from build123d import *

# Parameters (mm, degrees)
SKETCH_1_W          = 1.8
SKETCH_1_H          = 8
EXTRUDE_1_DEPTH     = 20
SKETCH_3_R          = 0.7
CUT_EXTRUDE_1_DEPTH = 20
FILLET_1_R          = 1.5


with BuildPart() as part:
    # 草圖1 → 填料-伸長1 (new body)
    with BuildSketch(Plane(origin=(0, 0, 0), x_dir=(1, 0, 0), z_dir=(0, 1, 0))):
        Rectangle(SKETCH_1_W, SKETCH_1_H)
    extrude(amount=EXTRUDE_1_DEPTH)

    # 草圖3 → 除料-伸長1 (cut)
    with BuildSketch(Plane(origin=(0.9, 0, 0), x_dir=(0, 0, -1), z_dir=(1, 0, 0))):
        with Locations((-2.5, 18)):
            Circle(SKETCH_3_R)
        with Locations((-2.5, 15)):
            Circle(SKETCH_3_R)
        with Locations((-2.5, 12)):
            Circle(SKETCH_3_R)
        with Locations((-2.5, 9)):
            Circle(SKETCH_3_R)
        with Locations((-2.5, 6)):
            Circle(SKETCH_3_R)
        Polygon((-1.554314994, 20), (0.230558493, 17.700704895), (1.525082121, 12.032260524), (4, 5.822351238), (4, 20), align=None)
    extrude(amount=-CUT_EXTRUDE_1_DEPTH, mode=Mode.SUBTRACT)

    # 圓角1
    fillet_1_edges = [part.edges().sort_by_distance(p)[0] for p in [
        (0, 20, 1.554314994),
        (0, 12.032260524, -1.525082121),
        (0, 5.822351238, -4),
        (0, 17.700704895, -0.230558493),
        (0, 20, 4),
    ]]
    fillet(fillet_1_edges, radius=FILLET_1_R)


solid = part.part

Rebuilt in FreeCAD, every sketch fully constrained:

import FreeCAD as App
import Part
import Sketcher


def edges_at(feature, points):
    """Names of the edges that pass closest to the given points."""
    edges = feature.Shape.Edges
    near = lambda p: min(range(len(edges)), key=lambda i: edges[i].distToShape(Part.Vertex(*p))[0])
    return sorted({f"Edge{near(p) + 1}" for p in points})


def add_polygon(sketch, points):
    """Adds a closed chain of lines whose ends are joined by coincident constraints."""
    first, n = sketch.GeometryCount, len(points)
    for a, b in zip(points, points[1:] + points[:1]):
        sketch.addGeometry(Part.LineSegment(App.Vector(*a, 0), App.Vector(*b, 0)), False)
    for i in range(n):
        sketch.addConstraint(Sketcher.Constraint("Coincident", first + i, 2, first + (i + 1) % n, 1))

doc = App.newDocument("Part")
params = doc.addObject("Spreadsheet::Sheet", "Params")
for row, (alias, value) in enumerate([
    ("sketch1_height", "8 mm"),
    ("sketch1_width", "1.8 mm"),
    ("pad1_length", "20 mm"),
    ("sketch2_diameter", "1.4 mm"),
    ("pocket1_length", "20 mm"),
    ("fillet_radius", "1.5 mm"),
], start=1):
    params.set(f"A{row}", alias)
    params.set(f"B{row}", "=" + value)
    params.setAlias(f"B{row}", alias)

body = doc.addObject("PartDesign::Body", "Body")

sketch1 = body.newObject("Sketcher::SketchObject", "Sketch")
sketch1.AttachmentSupport = (doc.getObject("XZ_Plane"), [""])
sketch1.MapMode = "FlatFace"
add_polygon(sketch1, [(-0.9, -4), (-0.9, 4), (0.9, 4), (0.9, -4)])
sketch1.addConstraint(Sketcher.Constraint("Vertical", 0))
sketch1.addConstraint(Sketcher.Constraint("Horizontal", 1))
sketch1.addConstraint(Sketcher.Constraint("Vertical", 2))
sketch1.addConstraint(Sketcher.Constraint("Horizontal", 3))
sketch1.addConstraint(Sketcher.Constraint("Symmetric", 0, 2, 2, 2, -1, 1))
sketch1.addConstraint(Sketcher.Constraint("DistanceY", 0, 1, 0, 2, 8.0))
sketch1.addConstraint(Sketcher.Constraint("DistanceX", 1, 1, 1, 2, 1.8))
sketch1.setExpression("Constraints[9]", "Params.sketch1_height")
sketch1.setExpression("Constraints[10]", "Params.sketch1_width")
pad1 = body.newObject("PartDesign::Pad", "Pad")
pad1.Profile = sketch1
pad1.setExpression("Length", "Params.pad1_length")
pad1.Reversed = True

sketch2 = body.newObject("Sketcher::SketchObject", "Sketch001")
sketch2.AttachmentSupport = (doc.getObject("YZ_Plane"), [""])
sketch2.MapMode = "FlatFace"
sketch2.AttachmentOffset = App.Placement(App.Vector(0, 0, 0.9), App.Rotation())
sketch2.addGeometry(Part.Circle(App.Vector(18, 2.5, 0), App.Vector(0, 0, 1), 0.7), False)
sketch2.addGeometry(Part.Circle(App.Vector(15, 2.5, 0), App.Vector(0, 0, 1), 0.7), False)
sketch2.addGeometry(Part.Circle(App.Vector(12, 2.5, 0), App.Vector(0, 0, 1), 0.7), False)
sketch2.addGeometry(Part.Circle(App.Vector(9, 2.5, 0), App.Vector(0, 0, 1), 0.7), False)
sketch2.addGeometry(Part.Circle(App.Vector(6, 2.5, 0), App.Vector(0, 0, 1), 0.7), False)
add_polygon(sketch2, [(20, 1.6), (17.7, -0.2), (12, -1.5), (5.8, -4), (20, -4)])
sketch2.addConstraint(Sketcher.Constraint("Horizontal", 8))
sketch2.addConstraint(Sketcher.Constraint("Vertical", 9))
sketch2.addConstraint(Sketcher.Constraint("Equal", 0, 1))
sketch2.addConstraint(Sketcher.Constraint("Equal", 1, 2))
sketch2.addConstraint(Sketcher.Constraint("Equal", 2, 3))
sketch2.addConstraint(Sketcher.Constraint("Equal", 3, 4))
sketch2.addConstraint(Sketcher.Constraint("Horizontal", 0, 3, 1, 3))
sketch2.addConstraint(Sketcher.Constraint("Horizontal", 1, 3, 2, 3))
sketch2.addConstraint(Sketcher.Constraint("Horizontal", 2, 3, 3, 3))
sketch2.addConstraint(Sketcher.Constraint("Horizontal", 3, 3, 4, 3))
sketch2.addConstraint(Sketcher.Constraint("Diameter", 0, 1.4))
sketch2.addConstraint(Sketcher.Constraint("DistanceX", -1, 1, 0, 3, 18.0))
sketch2.addConstraint(Sketcher.Constraint("DistanceX", -1, 1, 1, 3, 15.0))
sketch2.addConstraint(Sketcher.Constraint("DistanceX", -1, 1, 2, 3, 12.0))
sketch2.addConstraint(Sketcher.Constraint("DistanceX", -1, 1, 3, 3, 9.0))
sketch2.addConstraint(Sketcher.Constraint("DistanceX", -1, 1, 4, 3, 6.0))
sketch2.addConstraint(Sketcher.Constraint("DistanceY", 7, 2, -1, 1, 4.0))
sketch2.addConstraint(Sketcher.Constraint("DistanceX", -1, 1, 8, 2, 20.0))
sketch2.addConstraint(Sketcher.Constraint("DistanceY", -1, 1, 0, 3, 2.5))
sketch2.addConstraint(Sketcher.Constraint("DistanceX", 8, 1, 8, 2, 14.177649))
sketch2.addConstraint(Sketcher.Constraint("Distance", 5, 2.910761))
sketch2.addConstraint(Sketcher.Constraint("DistanceY", 9, 1, 9, 2, 5.554315))
sketch2.addConstraint(Sketcher.Constraint("DistanceY", 5, 2, -1, 1, 0.230558))
sketch2.addConstraint(Sketcher.Constraint("DistanceX", -1, 1, 6, 2, 12.032261))
sketch2.addConstraint(Sketcher.Constraint("Distance", 6, 5.814383))
sketch2.setExpression("Constraints[15]", "Params.sketch2_diameter")
pocket1 = body.newObject("PartDesign::Pocket", "Pocket")
pocket1.Profile = sketch2
pocket1.setExpression("Length", "Params.pocket1_length")
doc.recompute()

fillet = body.newObject("PartDesign::Fillet", "Fillet")
fillet.Base = (pocket1, edges_at(pocket1, [
    (0, 20, 1.554),
    (0, 12.032, -1.525),
    (0, 5.822, -4),
    (0, 17.701, -0.231),
    (0, 20, 4),
]))
fillet.setExpression("Radius", "Params.fillet_radius")

doc.recompute()
